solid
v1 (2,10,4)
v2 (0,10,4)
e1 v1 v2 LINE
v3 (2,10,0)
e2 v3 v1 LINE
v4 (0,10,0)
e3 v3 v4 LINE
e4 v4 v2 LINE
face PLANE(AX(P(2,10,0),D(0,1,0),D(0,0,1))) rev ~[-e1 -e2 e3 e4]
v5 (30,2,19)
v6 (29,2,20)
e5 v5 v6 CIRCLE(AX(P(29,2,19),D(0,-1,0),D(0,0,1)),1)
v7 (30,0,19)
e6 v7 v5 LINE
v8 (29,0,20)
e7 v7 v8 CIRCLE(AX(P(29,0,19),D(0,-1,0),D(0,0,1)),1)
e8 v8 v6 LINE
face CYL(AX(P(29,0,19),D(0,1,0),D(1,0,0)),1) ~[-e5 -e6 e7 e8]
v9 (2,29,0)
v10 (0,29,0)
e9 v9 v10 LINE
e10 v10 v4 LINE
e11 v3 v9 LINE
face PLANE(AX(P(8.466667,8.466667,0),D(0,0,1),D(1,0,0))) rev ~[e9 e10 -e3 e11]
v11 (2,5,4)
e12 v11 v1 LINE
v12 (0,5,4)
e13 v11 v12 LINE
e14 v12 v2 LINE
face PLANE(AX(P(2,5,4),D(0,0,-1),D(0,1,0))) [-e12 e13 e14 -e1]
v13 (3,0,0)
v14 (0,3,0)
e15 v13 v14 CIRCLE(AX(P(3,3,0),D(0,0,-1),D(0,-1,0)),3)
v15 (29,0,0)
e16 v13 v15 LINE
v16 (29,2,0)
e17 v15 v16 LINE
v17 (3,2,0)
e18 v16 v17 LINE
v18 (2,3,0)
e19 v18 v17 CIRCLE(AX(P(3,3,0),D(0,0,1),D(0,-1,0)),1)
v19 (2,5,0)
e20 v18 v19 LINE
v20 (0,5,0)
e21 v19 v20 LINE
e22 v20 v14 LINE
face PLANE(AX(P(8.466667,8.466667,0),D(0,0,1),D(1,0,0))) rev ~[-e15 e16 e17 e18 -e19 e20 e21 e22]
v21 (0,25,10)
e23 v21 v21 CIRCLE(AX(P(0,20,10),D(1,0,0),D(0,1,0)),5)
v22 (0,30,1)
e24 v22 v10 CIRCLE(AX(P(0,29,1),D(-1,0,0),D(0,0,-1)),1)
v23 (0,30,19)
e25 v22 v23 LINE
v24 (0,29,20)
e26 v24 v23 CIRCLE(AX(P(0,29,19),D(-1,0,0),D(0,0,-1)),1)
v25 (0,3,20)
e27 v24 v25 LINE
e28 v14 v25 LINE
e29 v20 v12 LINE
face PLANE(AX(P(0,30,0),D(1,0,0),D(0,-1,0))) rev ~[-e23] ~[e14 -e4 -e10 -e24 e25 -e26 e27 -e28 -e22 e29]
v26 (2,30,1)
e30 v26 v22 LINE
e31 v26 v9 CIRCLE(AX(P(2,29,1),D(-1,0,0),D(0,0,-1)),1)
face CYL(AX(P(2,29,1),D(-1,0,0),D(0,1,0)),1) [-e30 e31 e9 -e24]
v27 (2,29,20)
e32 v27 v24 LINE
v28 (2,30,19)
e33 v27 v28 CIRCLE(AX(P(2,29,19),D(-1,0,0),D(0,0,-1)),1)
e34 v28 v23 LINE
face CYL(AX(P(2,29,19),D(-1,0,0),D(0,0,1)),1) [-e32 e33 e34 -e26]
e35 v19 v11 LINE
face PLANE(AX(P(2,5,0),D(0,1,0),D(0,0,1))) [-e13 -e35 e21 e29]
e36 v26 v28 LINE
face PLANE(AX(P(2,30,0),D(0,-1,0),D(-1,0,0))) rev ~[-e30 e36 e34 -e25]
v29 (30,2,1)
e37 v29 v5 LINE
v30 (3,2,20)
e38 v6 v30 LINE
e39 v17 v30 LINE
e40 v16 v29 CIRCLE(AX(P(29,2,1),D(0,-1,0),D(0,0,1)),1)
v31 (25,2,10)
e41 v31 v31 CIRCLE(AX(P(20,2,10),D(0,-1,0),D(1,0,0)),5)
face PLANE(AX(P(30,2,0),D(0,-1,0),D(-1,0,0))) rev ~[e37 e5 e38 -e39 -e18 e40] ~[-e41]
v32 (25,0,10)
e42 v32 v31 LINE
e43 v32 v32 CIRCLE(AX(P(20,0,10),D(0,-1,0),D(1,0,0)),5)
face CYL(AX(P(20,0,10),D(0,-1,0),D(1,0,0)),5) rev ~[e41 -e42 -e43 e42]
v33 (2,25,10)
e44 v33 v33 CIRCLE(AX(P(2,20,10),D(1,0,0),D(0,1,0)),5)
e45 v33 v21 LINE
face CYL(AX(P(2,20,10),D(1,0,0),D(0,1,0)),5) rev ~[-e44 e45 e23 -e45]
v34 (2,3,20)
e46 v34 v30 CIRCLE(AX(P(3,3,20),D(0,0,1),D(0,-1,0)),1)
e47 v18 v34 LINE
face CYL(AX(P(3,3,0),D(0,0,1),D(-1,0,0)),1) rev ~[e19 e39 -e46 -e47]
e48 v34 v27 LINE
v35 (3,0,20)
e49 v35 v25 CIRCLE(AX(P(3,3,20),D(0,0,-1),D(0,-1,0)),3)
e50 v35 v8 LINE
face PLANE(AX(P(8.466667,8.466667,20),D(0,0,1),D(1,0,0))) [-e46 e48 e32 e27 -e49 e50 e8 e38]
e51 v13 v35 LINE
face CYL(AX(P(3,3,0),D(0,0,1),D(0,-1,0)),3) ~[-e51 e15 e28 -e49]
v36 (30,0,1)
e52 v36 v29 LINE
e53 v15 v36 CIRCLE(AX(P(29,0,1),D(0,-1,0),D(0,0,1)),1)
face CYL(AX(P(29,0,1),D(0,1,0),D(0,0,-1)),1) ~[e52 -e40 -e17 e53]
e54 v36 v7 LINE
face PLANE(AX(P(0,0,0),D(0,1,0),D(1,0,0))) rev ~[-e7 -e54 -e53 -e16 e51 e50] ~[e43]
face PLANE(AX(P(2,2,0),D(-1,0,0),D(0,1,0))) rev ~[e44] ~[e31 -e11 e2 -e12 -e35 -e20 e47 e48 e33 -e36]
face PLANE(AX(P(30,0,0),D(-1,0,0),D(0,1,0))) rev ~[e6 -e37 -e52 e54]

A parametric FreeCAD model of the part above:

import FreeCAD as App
import Part
import Sketcher
from FreeCAD import Vector


def edges_at(feature, points):
    """Names of the edges that pass closest to the given points."""
    edges = feature.Shape.Edges
    near = lambda p: min(range(len(edges)), key=lambda i: edges[i].distToShape(Part.Vertex(*p))[0])
    return sorted({f"Edge{near(p) + 1}" for p in points})

doc = App.newDocument("Part")
params = doc.addObject("Spreadsheet::Sheet", "Params")
for row, (alias, value) in enumerate([
    ("sketch1_width", "30 mm"),
    ("sketch1_width2", "28 mm"),
    ("pad1_length", "20 mm"),
    ("sketch2_diameter", "10 mm"),
    ("sketch3_diameter", "10 mm"),
    ("sketch4_width", "5 mm"),
    ("sketch4_height", "4 mm"),
    ("fillet_radius", "3 mm"),
    ("fillet2_radius", "1 mm"),
], start=1):
    params.set(f"A{row}", alias)
    params.set(f"B{row}", "=" + value)
    params.setAlias(f"B{row}", alias)

body = doc.addObject("PartDesign::Body", "Body")

sketch1 = body.newObject("Sketcher::SketchObject", "Sketch")
sketch1.AttachmentSupport = (doc.getObject("XY_Plane"), [""])
sketch1.MapMode = "FlatFace"
sketch1.addGeometry(Part.LineSegment(Vector(0, 0, 0), Vector(30, 0, 0)), False)
sketch1.addGeometry(Part.LineSegment(Vector(30, 0, 0), Vector(30, 2, 0)), False)
sketch1.addGeometry(Part.LineSegment(Vector(30, 2, 0), Vector(2, 2, 0)), False)
sketch1.addGeometry(Part.LineSegment(Vector(2, 2, 0), Vector(2, 30, 0)), False)
sketch1.addGeometry(Part.LineSegment(Vector(2, 30, 0), Vector(0, 30, 0)), False)
sketch1.addGeometry(Part.LineSegment(Vector(0, 30, 0), Vector(0, 0, 0)), False)
sketch1.addConstraint(Sketcher.Constraint("Coincident", 0, 2, 1, 1))
sketch1.addConstraint(Sketcher.Constraint("Coincident", 1, 2, 2, 1))
sketch1.addConstraint(Sketcher.Constraint("Coincident", 2, 2, 3, 1))
sketch1.addConstraint(Sketcher.Constraint("Coincident", 3, 2, 4, 1))
sketch1.addConstraint(Sketcher.Constraint("Coincident", 4, 2, 5, 1))
sketch1.addConstraint(Sketcher.Constraint("Coincident", 5, 2, 0, 1))
sketch1.addConstraint(Sketcher.Constraint("Horizontal", 0))
sketch1.addConstraint(Sketcher.Constraint("Vertical", 1))
sketch1.addConstraint(Sketcher.Constraint("Horizontal", 2))
sketch1.addConstraint(Sketcher.Constraint("Vertical", 3))
sketch1.addConstraint(Sketcher.Constraint("Horizontal", 4))
sketch1.addConstraint(Sketcher.Constraint("Vertical", 5))
sketch1.addConstraint(Sketcher.Constraint("Coincident", 5, 2, -1, 1))
sketch1.addConstraint(Sketcher.Constraint("Equal", 4, 1))
sketch1.addConstraint(Sketcher.Constraint("Equal", 2, 3))
sketch1.addConstraint(Sketcher.Constraint("DistanceX", 0, 1, 0, 2, 30.0))
sketch1.addConstraint(Sketcher.Constraint("DistanceX", 2, 2, 2, 1, 28.0))
sketch1.setExpression("Constraints[15]", "Params.sketch1_width")
sketch1.setExpression("Constraints[16]", "Params.sketch1_width2")
pad1 = body.newObject("PartDesign::Pad", "Pad")
pad1.Profile = sketch1
pad1.setExpression("Length", "Params.pad1_length")

sketch2 = body.newObject("Sketcher::SketchObject", "Sketch001")
sketch2.AttachmentSupport = (doc.getObject("XZ_Plane"), [""])
sketch2.MapMode = "FlatFace"
sketch2.addGeometry(Part.Circle(Vector(20, 10, 0), Vector(0, 0, 1), 5), False)
sketch2.addConstraint(Sketcher.Constraint("Diameter", 0, 10.0))
sketch2.addConstraint(Sketcher.Constraint("DistanceX", -1, 1, 0, 3, 20.0))
sketch2.addConstraint(Sketcher.Constraint("DistanceY", -1, 1, 0, 3, 10.0))
sketch2.setExpression("Constraints[0]", "Params.sketch2_diameter")
pocket1 = body.newObject("PartDesign::Pocket", "Pocket")
pocket1.Profile = sketch2
pocket1.Type = "ThroughAll"

sketch3 = body.newObject("Sketcher::SketchObject", "Sketch002")
sketch3.AttachmentSupport = (doc.getObject("YZ_Plane"), [""])
sketch3.MapMode = "FlatFace"
sketch3.AttachmentOffset = App.Placement(Vector(0, 0, 2), App.Rotation())
sketch3.addGeometry(Part.Circle(Vector(20, 10, 0), Vector(0, 0, 1), 5), False)
sketch3.addConstraint(Sketcher.Constraint("Diameter", 0, 10.0))
sketch3.addConstraint(Sketcher.Constraint("DistanceX", -1, 1, 0, 3, 20.0))
sketch3.addConstraint(Sketcher.Constraint("DistanceY", -1, 1, 0, 3, 10.0))
sketch3.setExpression("Constraints[0]", "Params.sketch3_diameter")
pocket2 = body.newObject("PartDesign::Pocket", "Pocket001")
pocket2.Profile = sketch3
pocket2.Type = "ThroughAll"

sketch4 = body.newObject("Sketcher::SketchObject", "Sketch003")
sketch4.AttachmentSupport = (doc.getObject("YZ_Plane"), [""])
sketch4.MapMode = "FlatFace"
sketch4.AttachmentOffset = App.Placement(Vector(0, 0, 2), App.Rotation())
sketch4.addGeometry(Part.LineSegment(Vector(5, 4, 0), Vector(5, 0, 0)), False)
sketch4.addGeometry(Part.LineSegment(Vector(5, 0, 0), Vector(10, 0, 0)), False)
sketch4.addGeometry(Part.LineSegment(Vector(10, 0, 0), Vector(10, 4, 0)), False)
sketch4.addGeometry(Part.LineSegment(Vector(10, 4, 0), Vector(5, 4, 0)), False)
sketch4.addConstraint(Sketcher.Constraint("Coincident", 0, 2, 1, 1))
sketch4.addConstraint(Sketcher.Constraint("Coincident", 1, 2, 2, 1))
sketch4.addConstraint(Sketcher.Constraint("Coincident", 2, 2, 3, 1))
sketch4.addConstraint(Sketcher.Constraint("Coincident", 3, 2, 0, 1))
sketch4.addConstraint(Sketcher.Constraint("Vertical", 0))
sketch4.addConstraint(Sketcher.Constraint("Horizontal", 1))
sketch4.addConstraint(Sketcher.Constraint("Vertical", 2))
sketch4.addConstraint(Sketcher.Constraint("Horizontal", 3))
sketch4.addConstraint(Sketcher.Constraint("PointOnObject", 0, 2, -1))
sketch4.addConstraint(Sketcher.Constraint("DistanceX", 1, 1, 1, 2, 5.0))
sketch4.addConstraint(Sketcher.Constraint("DistanceY", 0, 2, 0, 1, 4.0))
sketch4.addConstraint(Sketcher.Constraint("DistanceX", -1, 1, 0, 2, 5.0))
sketch4.setExpression("Constraints[9]", "Params.sketch4_width")
sketch4.setExpression("Constraints[10]", "Params.sketch4_height")
pocket3 = body.newObject("PartDesign::Pocket", "Pocket002")
pocket3.Profile = sketch4
pocket3.Type = "ThroughAll"
doc.recompute()

fillet = body.newObject("PartDesign::Fillet", "Fillet")
fillet.Base = (pocket3, edges_at(pocket3, [(0, 0, 10)]))
fillet.setExpression("Radius", "Params.fillet_radius")
doc.recompute()

fillet2 = body.newObject("PartDesign::Fillet", "Fillet001")
fillet2.Base = (fillet, edges_at(fillet, [
    (2, 2, 10),
    (30, 1, 0),
    (30, 1, 20),
    (1, 30, 0),
    (1, 30, 20),
]))
fillet2.setExpression("Radius", "Params.fillet2_radius")

doc.recompute()
